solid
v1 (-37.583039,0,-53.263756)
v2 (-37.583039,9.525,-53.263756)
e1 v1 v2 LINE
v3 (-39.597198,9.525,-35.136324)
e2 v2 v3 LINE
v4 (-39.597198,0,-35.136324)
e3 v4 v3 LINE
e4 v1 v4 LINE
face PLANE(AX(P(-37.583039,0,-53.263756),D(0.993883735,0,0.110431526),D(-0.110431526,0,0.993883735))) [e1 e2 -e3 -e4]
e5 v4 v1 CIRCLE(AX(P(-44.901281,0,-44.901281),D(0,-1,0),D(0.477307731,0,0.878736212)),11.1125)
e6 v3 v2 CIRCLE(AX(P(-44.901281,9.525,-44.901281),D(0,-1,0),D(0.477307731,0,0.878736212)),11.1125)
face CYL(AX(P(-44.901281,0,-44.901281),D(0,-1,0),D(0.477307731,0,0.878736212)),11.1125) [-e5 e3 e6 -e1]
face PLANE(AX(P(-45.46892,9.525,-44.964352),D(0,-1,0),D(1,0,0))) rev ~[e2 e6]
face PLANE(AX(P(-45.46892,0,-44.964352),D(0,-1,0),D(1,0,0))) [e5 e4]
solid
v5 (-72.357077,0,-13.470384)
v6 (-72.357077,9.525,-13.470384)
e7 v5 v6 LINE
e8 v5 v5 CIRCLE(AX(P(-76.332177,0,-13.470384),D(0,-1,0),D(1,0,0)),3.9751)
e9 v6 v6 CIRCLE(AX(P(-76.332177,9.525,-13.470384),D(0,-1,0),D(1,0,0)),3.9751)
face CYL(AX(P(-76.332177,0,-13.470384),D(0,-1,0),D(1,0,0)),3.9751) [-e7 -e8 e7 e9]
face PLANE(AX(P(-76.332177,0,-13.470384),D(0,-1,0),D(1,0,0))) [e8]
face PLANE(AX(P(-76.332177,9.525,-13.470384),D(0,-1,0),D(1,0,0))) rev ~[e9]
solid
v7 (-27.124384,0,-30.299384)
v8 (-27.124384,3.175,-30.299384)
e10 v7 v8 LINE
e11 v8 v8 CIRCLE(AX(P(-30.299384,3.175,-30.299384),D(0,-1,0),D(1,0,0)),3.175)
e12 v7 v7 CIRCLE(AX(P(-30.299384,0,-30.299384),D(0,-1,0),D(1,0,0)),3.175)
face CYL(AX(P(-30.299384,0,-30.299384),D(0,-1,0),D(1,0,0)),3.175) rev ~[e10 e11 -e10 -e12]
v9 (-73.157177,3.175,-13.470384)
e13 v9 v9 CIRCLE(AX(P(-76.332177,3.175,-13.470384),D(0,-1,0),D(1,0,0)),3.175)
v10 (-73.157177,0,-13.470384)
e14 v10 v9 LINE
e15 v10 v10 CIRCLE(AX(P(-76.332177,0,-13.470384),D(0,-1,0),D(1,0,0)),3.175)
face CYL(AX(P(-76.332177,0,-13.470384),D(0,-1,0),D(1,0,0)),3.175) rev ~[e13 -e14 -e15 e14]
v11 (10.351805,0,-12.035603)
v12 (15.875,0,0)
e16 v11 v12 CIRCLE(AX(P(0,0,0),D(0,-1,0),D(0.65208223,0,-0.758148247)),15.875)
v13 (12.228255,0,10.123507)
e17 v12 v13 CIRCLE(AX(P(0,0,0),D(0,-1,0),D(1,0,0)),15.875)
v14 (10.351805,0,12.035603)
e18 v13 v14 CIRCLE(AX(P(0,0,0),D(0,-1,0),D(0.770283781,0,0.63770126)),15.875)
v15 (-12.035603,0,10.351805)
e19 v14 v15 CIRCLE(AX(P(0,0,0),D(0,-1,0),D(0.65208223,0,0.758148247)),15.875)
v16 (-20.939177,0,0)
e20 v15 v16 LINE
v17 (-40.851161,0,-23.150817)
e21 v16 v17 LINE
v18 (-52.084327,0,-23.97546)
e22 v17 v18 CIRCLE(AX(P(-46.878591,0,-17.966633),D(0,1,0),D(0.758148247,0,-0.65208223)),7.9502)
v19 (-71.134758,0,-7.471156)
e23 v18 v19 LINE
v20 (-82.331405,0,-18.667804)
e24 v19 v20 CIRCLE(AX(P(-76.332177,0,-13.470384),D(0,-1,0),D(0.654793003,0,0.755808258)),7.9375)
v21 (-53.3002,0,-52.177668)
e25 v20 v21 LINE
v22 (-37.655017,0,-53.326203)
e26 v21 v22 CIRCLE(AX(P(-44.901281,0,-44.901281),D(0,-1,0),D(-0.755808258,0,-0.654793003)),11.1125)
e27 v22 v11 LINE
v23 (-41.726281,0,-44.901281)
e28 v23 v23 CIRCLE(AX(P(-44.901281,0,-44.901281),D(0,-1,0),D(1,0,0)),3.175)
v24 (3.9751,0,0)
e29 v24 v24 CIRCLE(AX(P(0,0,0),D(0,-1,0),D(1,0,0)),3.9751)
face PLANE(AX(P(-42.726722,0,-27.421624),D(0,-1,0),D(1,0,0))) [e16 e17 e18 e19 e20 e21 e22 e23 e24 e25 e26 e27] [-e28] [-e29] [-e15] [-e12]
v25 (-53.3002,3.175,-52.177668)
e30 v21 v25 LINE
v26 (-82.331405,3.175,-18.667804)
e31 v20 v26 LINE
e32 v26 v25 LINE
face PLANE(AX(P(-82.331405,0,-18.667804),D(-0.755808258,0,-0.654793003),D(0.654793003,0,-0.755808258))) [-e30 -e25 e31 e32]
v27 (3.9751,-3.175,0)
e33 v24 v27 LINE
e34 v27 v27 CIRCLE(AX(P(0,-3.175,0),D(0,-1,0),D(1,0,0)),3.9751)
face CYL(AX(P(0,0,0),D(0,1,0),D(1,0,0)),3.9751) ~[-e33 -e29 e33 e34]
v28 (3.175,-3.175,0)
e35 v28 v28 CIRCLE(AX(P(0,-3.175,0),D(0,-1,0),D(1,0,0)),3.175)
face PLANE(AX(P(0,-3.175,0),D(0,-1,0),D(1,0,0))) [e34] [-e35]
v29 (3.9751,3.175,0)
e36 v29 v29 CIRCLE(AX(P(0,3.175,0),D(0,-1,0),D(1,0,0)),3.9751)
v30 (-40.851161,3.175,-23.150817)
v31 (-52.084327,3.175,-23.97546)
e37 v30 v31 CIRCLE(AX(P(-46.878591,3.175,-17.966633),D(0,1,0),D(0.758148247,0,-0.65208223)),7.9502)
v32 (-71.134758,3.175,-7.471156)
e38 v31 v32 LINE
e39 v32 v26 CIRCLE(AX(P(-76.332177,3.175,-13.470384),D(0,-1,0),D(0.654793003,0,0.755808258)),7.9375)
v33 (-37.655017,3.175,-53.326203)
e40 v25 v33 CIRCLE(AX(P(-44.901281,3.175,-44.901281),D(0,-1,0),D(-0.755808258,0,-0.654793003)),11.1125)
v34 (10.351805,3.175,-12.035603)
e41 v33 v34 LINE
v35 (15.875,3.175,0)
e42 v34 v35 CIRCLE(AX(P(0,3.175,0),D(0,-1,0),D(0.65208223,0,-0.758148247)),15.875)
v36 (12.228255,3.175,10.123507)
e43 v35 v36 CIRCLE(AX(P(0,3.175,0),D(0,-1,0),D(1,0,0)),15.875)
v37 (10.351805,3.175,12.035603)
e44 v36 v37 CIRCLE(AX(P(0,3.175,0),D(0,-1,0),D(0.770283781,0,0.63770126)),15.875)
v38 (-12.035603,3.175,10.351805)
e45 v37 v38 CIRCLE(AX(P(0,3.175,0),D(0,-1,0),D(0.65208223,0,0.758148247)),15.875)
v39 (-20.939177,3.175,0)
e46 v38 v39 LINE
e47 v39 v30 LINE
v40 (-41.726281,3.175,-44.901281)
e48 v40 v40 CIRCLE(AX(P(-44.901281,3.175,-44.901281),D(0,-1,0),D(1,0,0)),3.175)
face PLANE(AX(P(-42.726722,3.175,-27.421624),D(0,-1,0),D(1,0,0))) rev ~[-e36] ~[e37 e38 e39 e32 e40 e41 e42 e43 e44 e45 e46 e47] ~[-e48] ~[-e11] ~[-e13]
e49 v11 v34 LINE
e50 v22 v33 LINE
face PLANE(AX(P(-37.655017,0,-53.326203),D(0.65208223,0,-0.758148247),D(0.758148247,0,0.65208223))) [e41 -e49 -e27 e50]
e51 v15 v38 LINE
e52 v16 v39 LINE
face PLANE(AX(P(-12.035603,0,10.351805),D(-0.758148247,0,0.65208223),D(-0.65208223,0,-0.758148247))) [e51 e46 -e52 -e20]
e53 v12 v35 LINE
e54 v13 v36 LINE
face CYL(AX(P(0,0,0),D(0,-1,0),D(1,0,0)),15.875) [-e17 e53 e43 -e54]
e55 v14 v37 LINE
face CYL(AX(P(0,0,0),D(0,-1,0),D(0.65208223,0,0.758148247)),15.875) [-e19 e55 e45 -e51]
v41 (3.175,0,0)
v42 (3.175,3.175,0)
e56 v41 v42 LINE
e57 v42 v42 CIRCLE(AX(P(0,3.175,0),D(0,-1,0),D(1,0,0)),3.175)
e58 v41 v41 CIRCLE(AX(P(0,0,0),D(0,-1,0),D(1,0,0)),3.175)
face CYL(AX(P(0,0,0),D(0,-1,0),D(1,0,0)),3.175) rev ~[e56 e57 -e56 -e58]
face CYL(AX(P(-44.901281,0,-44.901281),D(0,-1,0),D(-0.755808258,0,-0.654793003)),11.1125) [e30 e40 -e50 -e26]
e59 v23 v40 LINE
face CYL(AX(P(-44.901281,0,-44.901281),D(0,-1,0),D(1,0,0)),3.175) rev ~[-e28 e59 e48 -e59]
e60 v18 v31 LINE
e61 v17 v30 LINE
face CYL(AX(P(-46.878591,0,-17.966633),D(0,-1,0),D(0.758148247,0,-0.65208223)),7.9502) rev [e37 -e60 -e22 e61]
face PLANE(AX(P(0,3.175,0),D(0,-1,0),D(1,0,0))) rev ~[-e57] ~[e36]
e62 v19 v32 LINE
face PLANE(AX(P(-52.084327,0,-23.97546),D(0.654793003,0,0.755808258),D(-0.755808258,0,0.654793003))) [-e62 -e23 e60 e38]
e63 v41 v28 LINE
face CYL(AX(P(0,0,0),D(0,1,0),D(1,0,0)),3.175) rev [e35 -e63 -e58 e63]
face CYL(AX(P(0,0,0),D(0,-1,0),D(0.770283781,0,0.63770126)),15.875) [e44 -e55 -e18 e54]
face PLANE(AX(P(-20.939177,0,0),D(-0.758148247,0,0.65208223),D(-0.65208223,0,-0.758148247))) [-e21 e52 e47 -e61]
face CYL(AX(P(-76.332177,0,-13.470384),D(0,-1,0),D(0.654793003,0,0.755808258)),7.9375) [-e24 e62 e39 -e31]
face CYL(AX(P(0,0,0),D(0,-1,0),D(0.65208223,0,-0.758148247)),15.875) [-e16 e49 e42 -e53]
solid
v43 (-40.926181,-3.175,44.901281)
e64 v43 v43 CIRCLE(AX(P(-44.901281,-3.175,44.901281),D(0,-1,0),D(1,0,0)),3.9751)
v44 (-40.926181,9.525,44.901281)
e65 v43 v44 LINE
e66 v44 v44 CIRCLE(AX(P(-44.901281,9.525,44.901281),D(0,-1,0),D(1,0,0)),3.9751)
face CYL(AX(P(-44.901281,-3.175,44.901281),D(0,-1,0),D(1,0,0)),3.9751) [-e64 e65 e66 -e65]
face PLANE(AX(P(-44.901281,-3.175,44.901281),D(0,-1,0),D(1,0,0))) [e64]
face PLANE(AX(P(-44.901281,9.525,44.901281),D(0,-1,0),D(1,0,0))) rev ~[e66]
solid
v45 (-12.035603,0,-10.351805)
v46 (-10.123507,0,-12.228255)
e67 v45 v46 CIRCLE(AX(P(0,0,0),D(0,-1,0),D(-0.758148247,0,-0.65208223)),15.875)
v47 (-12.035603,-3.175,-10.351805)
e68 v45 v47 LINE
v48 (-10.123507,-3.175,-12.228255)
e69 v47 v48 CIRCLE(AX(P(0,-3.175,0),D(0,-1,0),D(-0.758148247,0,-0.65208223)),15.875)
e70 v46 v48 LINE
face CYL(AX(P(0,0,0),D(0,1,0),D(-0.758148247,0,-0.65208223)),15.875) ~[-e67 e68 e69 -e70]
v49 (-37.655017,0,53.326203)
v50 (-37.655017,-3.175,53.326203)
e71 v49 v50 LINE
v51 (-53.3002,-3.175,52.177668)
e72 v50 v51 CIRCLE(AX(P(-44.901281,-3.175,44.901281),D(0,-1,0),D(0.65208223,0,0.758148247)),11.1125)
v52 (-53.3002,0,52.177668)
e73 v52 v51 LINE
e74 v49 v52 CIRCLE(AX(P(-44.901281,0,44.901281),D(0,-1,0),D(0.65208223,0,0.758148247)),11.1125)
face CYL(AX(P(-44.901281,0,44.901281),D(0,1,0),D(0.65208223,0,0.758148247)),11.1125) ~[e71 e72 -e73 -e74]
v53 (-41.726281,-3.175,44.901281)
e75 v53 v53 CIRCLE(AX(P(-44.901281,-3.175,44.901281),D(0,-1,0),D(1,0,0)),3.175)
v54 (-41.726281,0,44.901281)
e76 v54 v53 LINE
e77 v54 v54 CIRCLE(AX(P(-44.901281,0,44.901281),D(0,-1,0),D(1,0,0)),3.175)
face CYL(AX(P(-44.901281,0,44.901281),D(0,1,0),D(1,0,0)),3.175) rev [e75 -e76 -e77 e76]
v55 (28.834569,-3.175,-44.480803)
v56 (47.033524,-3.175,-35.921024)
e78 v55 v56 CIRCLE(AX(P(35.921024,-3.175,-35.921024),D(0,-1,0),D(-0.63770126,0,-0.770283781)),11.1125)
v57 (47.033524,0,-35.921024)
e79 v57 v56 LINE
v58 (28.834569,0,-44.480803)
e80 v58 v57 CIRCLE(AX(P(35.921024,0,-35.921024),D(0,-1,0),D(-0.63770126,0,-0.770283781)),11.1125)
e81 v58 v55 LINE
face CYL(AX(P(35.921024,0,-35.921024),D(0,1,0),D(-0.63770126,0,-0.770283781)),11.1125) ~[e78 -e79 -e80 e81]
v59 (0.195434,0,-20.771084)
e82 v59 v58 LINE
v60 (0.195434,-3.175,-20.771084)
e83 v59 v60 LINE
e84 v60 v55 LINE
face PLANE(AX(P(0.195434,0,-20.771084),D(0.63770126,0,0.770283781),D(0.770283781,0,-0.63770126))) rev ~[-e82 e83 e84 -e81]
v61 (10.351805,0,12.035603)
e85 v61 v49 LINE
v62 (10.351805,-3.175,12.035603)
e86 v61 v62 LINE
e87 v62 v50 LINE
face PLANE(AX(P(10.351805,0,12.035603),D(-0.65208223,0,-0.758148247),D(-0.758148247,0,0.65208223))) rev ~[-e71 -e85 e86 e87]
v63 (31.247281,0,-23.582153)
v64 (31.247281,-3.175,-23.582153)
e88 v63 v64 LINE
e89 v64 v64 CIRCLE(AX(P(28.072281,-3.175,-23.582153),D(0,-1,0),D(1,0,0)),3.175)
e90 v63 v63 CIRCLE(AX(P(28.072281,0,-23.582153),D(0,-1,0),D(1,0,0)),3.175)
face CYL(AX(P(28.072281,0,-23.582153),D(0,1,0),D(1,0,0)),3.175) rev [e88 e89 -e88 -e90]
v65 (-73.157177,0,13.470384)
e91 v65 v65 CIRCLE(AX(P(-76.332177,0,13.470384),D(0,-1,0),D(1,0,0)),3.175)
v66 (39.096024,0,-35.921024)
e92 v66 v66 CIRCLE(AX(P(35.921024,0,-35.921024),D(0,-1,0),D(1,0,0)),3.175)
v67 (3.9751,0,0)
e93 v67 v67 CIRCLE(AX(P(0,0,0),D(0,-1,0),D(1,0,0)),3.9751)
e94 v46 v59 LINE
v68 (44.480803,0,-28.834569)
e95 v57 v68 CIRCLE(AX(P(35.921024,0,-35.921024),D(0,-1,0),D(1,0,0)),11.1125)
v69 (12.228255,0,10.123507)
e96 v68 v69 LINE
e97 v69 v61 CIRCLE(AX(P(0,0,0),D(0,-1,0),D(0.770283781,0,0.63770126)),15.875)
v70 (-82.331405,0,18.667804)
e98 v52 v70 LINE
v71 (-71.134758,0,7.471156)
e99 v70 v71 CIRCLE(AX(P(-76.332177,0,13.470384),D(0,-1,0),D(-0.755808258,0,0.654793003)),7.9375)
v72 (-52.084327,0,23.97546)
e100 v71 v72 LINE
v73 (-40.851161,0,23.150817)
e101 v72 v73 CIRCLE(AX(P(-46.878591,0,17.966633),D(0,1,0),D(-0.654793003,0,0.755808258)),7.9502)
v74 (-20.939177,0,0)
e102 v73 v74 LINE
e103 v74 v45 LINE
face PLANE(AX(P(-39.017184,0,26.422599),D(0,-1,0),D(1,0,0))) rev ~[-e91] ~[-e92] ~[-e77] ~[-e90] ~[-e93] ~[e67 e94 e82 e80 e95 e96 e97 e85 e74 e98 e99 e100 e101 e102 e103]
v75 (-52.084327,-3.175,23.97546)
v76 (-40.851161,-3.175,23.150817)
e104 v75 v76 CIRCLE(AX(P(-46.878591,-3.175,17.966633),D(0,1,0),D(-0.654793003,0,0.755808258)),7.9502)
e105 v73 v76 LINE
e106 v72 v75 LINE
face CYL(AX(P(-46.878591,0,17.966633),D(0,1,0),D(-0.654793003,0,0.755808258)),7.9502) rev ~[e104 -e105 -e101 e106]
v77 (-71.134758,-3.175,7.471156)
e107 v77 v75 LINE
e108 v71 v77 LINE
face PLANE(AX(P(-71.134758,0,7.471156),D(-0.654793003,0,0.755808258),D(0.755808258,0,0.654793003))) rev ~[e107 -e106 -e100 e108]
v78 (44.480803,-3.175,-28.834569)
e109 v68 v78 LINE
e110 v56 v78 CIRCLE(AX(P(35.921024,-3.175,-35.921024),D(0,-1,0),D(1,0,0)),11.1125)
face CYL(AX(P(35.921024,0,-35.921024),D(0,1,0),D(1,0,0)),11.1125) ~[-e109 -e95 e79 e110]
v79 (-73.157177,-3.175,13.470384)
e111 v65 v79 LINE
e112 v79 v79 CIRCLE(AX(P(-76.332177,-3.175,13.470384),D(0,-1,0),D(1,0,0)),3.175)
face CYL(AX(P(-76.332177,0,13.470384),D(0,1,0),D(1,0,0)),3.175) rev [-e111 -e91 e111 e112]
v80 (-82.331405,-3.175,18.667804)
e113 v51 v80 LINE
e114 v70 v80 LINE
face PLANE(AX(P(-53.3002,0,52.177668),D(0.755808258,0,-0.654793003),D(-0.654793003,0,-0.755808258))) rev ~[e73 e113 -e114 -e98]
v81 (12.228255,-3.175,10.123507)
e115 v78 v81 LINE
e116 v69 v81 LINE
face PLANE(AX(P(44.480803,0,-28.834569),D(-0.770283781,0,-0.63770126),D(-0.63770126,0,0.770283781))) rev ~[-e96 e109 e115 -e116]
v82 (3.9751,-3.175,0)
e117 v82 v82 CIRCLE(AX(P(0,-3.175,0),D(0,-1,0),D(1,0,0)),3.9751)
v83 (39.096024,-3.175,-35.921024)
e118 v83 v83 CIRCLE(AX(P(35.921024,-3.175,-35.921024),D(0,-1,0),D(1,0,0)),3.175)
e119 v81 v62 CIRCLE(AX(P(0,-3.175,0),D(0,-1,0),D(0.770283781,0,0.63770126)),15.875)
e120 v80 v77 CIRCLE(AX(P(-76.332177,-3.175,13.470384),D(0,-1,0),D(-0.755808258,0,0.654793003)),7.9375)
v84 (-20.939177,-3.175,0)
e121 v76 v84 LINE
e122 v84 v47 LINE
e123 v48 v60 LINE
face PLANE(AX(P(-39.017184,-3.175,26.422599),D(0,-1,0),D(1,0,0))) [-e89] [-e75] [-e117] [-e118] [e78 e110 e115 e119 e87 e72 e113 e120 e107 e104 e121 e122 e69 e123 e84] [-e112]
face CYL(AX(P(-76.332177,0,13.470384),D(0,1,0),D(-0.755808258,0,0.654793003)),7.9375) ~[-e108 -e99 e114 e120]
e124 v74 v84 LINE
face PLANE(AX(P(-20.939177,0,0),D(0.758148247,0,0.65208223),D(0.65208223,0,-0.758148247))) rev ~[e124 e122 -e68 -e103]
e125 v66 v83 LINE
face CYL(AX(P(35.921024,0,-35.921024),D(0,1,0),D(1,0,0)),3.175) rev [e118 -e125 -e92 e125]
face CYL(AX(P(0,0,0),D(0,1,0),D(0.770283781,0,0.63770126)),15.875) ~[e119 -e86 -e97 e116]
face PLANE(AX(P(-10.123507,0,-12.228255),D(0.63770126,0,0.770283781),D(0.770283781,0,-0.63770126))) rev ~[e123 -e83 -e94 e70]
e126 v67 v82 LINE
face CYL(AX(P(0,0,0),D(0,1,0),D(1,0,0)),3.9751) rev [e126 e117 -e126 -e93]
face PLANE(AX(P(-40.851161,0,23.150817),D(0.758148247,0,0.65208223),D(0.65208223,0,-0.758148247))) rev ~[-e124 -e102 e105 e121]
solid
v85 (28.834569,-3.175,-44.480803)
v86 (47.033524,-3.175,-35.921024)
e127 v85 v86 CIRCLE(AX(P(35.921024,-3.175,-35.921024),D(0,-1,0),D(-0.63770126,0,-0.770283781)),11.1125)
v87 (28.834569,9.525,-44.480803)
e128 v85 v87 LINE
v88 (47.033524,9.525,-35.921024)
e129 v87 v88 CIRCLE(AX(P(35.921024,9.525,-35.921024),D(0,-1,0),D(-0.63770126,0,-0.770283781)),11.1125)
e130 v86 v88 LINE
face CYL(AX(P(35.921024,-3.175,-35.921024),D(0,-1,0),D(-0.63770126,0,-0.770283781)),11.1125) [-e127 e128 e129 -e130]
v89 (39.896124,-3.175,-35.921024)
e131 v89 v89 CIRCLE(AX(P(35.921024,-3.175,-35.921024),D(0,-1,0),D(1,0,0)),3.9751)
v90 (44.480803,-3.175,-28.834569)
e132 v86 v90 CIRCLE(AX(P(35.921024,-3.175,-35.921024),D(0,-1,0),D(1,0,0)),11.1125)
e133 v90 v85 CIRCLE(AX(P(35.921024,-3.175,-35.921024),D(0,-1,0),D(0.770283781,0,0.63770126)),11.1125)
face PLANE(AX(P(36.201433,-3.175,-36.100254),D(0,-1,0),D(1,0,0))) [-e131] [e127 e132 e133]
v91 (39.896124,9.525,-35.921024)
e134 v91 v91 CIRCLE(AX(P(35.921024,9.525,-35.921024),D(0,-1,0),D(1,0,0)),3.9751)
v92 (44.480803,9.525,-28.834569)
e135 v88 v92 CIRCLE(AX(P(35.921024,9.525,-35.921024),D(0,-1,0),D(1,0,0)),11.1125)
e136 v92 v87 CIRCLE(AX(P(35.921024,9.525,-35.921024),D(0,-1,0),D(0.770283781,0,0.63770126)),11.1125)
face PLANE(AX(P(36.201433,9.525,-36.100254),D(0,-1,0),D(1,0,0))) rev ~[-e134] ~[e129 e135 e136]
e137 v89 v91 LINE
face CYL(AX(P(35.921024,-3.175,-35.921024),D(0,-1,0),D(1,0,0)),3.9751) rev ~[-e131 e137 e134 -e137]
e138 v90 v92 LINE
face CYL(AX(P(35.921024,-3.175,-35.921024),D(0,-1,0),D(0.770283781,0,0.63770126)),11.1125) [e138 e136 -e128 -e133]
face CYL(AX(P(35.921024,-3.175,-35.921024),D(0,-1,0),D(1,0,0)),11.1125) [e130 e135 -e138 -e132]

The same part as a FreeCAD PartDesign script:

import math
import FreeCAD as App
import Part
import Sketcher
from FreeCAD import Vector
Q = App.Units.Quantity

doc = App.newDocument("Part")
params = doc.addObject("Spreadsheet::Sheet", "Params")
for row, (alias, value) in enumerate([
    ("sketch1_diameter", "0.25 in"),
    ("sketch1_diameter2", "0.313 in"),
    ("sketch1_radius", "0.4375 in"),
    ("sketch1_radius2", "0.3125 in"),
    ("sketch1_radius3", "0.313 in"),
    ("pad1_length", "0.125 in"),
    ("sketch2_diameter", "0.25 in"),
    ("sketch2_diameter2", "0.25 in"),
    ("sketch2_diameter3", "0.25 in"),
    ("sketch2_diameter4", "0.313 in"),
    ("sketch2_radius", "0.625 in"),
    ("pad2_length", "0.125 in"),
    ("sketch3_diameter", "0.25 in"),
    ("sketch3_diameter2", "0.313 in"),
    ("pad3_length", "0.125 in"),
    ("pad3_length2", "0.125 in"),
    ("sketch4_diameter", "0.313 in"),
    ("pad4_length", "0.5 in"),
    ("sketch5_diameter", "0.313 in"),
    ("sketch5_radius", "0.4375 in"),
    ("pad5_length", "0.5 in"),
    ("sketch6_radius", "0.4375 in"),
    ("pad6_length", "0.375 in"),
    ("sketch7_diameter", "0.313 in"),
    ("pad7_length", "0.375 in"),
], start=1):
    params.set(f"A{row}", alias)
    params.set(f"B{row}", "=" + value)
    params.setAlias(f"B{row}", alias)

body = doc.addObject("PartDesign::Body", "Body")

# Sketch on XZ plane
sketch1 = body.newObject("Sketcher::SketchObject", "Sketch")
sketch1.AttachmentSupport = (doc.getObject("XZ_Plane"), [""])
sketch1.MapMode = "FlatFace"
sketch1.addGeometry(Part.LineSegment(Vector(10.4, 12, 0), Vector(-37.7, 53.3, 0)), False)
sketch1.addGeometry(Part.ArcOfCircle(Part.Circle(Vector(-44.9, 44.9, 0), Vector(0, 0, 1), 11.1), math.radians(49), math.radians(139)), False)
sketch1.addGeometry(Part.LineSegment(Vector(-53.3, 52.2, 0), Vector(-82.3, 18.7, 0)), False)
sketch1.addGeometry(Part.ArcOfCircle(Part.Circle(Vector(-76.3, 13.5, 0), Vector(0, 0, 1), 7.9), math.radians(139), math.radians(311)), False)
sketch1.addGeometry(Part.LineSegment(Vector(-71.1, 7.5, 0), Vector(-52.1, 24, 0)), False)
sketch1.addGeometry(Part.ArcOfCircle(Part.Circle(Vector(-46.9, 18, 0), Vector(0, 0, 1), 8), math.radians(41), math.radians(131)), False)
sketch1.addGeometry(Part.LineSegment(Vector(-40.9, 23.2, 0), Vector(-20.9, 0, 0)), False)
sketch1.addGeometry(Part.LineSegment(Vector(-20.9, 0, 0), Vector(-12, -10.4, 0)), False)
sketch1.addGeometry(Part.ArcOfCircle(Part.Circle(Vector(0, 0, 0), Vector(0, 0, 1), 15.9), math.radians(-139.3), math.radians(-129.62)), False)
sketch1.addGeometry(Part.LineSegment(Vector(-10.1, -12.2, 0), Vector(0.2, -20.8, 0)), False)
sketch1.addGeometry(Part.LineSegment(Vector(0.2, -20.8, 0), Vector(28.8, -44.5, 0)), False)
sketch1.addGeometry(Part.ArcOfCircle(Part.Circle(Vector(35.9, -35.9, 0), Vector(0, 0, 1), 11.1), math.radians(-130), math.radians(0)), False)
sketch1.addGeometry(Part.ArcOfCircle(Part.Circle(Vector(35.9, -35.9, 0), Vector(0, 0, 1), 11.1), math.radians(0), math.radians(40)), False)
sketch1.addGeometry(Part.LineSegment(Vector(44.5, -28.8, 0), Vector(12.2, 10.1, 0)), False)
sketch1.addGeometry(Part.ArcOfCircle(Part.Circle(Vector(0, 0, 0), Vector(0, 0, 1), 15.9), math.radians(39.62), math.radians(49.3)), False)
sketch1.addGeometry(Part.Circle(Vector(35.9, -35.9, 0), Vector(0, 0, 1), 3.2), False)
sketch1.addGeometry(Part.Circle(Vector(28.1, -23.6, 0), Vector(0, 0, 1), 3.2), False)
sketch1.addGeometry(Part.Circle(Vector(0, 0, 0), Vector(0, 0, 1), 4), False)
sketch1.addGeometry(Part.Circle(Vector(-76.3, 13.5, 0), Vector(0, 0, 1), 3.2), False)
sketch1.addGeometry(Part.Circle(Vector(-44.9, 44.9, 0), Vector(0, 0, 1), 3.2), False)
sketch1.addConstraint(Sketcher.Constraint("Tangent", 0, 2, 1, 1))
sketch1.addConstraint(Sketcher.Constraint("Tangent", 1, 2, 2, 1))
sketch1.addConstraint(Sketcher.Constraint("Tangent", 2, 2, 3, 1))
sketch1.addConstraint(Sketcher.Constraint("Tangent", 3, 2, 4, 1))
sketch1.addConstraint(Sketcher.Constraint("Tangent", 4, 2, 5, 2))
sketch1.addConstraint(Sketcher.Constraint("Tangent", 5, 1, 6, 1))
sketch1.addConstraint(Sketcher.Constraint("Coincident", 6, 2, 7, 1))
sketch1.addConstraint(Sketcher.Constraint("Tangent", 7, 2, 8, 1))
sketch1.addConstraint(Sketcher.Constraint("Tangent", 8, 2, 9, 1))
sketch1.addConstraint(Sketcher.Constraint("Coincident", 9, 2, 10, 1))
sketch1.addConstraint(Sketcher.Constraint("Tangent", 10, 2, 11, 1))
sketch1.addConstraint(Sketcher.Constraint("Tangent", 11, 2, 12, 1))
sketch1.addConstraint(Sketcher.Constraint("Tangent", 12, 2, 13, 1))
sketch1.addConstraint(Sketcher.Constraint("Tangent", 13, 2, 14, 1))
sketch1.addConstraint(Sketcher.Constraint("Tangent", 14, 2, 0, 1))
sketch1.addConstraint(Sketcher.Constraint("Coincident", 8, 3, -1, 1))
sketch1.addConstraint(Sketcher.Constraint("Coincident", 14, 3, -1, 1))
sketch1.addConstraint(Sketcher.Constraint("Coincident", 17, 3, -1, 1))
sketch1.addConstraint(Sketcher.Constraint("Coincident", 15, 3, 11, 3))
sketch1.addConstraint(Sketcher.Constraint("Coincident", 18, 3, 3, 3))
sketch1.addConstraint(Sketcher.Constraint("Coincident", 19, 3, 1, 3))
sketch1.addConstraint(Sketcher.Constraint("Equal", 1, 11))
sketch1.addConstraint(Sketcher.Constraint("Equal", 11, 12))
sketch1.addConstraint(Sketcher.Constraint("Equal", 8, 14))
sketch1.addConstraint(Sketcher.Constraint("Equal", 15, 16))
sketch1.addConstraint(Sketcher.Constraint("Equal", 16, 18))
sketch1.addConstraint(Sketcher.Constraint("Equal", 18, 19))
sketch1.addConstraint(Sketcher.Constraint("PointOnObject", 6, 2, -1))
sketch1.addConstraint(Sketcher.Constraint("Parallel", 6, 7))
sketch1.addConstraint(Sketcher.Constraint("Parallel", 9, 10))
sketch1.addConstraint(Sketcher.Constraint("Horizontal", 15, 3, 11, 2))
sketch1.addConstraint(Sketcher.Constraint("Diameter", 15, Q("0.25 in")))
sketch1.addConstraint(Sketcher.Constraint("Diameter", 17, Q("0.313 in")))
sketch1.addConstraint(Sketcher.Constraint("Radius", 1, Q("0.4375 in")))
sketch1.addConstraint(Sketcher.Constraint("Radius", 3, Q("0.3125 in")))
sketch1.addConstraint(Sketcher.Constraint("Radius", 5, Q("0.313 in")))
sketch1.addConstraint(Sketcher.Constraint("Radius", 8, Q("0.625 in")))
sketch1.addConstraint(Sketcher.Constraint("DistanceX", 1, 2, -1, 1, 53.3002))
sketch1.addConstraint(Sketcher.Constraint("DistanceX", 3, 3, 11, 3, 112.253202))
sketch1.addConstraint(Sketcher.Constraint("Distance", 10, 37.179979))
sketch1.addConstraint(Sketcher.Constraint("DistanceX", 1, 3, -1, 1, 44.901281))
sketch1.addConstraint(Sketcher.Constraint("DistanceY", -1, 1, 1, 3, 44.901281))
sketch1.addConstraint(Sketcher.Constraint("DistanceX", 5, 3, -1, 1, 46.878591))
sketch1.addConstraint(Sketcher.Constraint("DistanceX", -1, 1, 16, 3, 28.072281))
sketch1.addConstraint(Sketcher.Constraint("DistanceY", -1, 1, 4, 2, 23.97546))
sketch1.addConstraint(Sketcher.Constraint("DistanceX", -1, 1, 10, 2, 28.834569))
sketch1.addConstraint(Sketcher.Constraint("DistanceY", 12, 2, -1, 1, 28.834569))
sketch1.addConstraint(Sketcher.Constraint("DistanceY", 11, 3, 16, 3, 12.338872))
sketch1.setExpression("Constraints[31]", "Params.sketch1_diameter")
sketch1.setExpression("Constraints[32]", "Params.sketch1_diameter2")
sketch1.setExpression("Constraints[33]", "Params.sketch1_radius")
sketch1.setExpression("Constraints[34]", "Params.sketch1_radius2")
sketch1.setExpression("Constraints[35]", "Params.sketch1_radius3")
pad1 = body.newObject("PartDesign::Pad", "Pad")
pad1.Profile = sketch1
pad1.setExpression("Length", "Params.pad1_length")
body2 = doc.addObject("PartDesign::Body", "Body001")

# Sketch on XZ plane
sketch2 = body2.newObject("Sketcher::SketchObject", "Sketch001")
sketch2.AttachmentSupport = (doc.getObject("XZ_Plane001"), [""])
sketch2.MapMode = "FlatFace"
sketch2.addGeometry(Part.LineSegment(Vector(-37.655017, -53.326203, 0), Vector(10.351805, -12.035603, 0)), False)
sketch2.addGeometry(Part.ArcOfCircle(Part.Circle(Vector(0, 0, 0), Vector(0, 0, 1), 15.875), math.radians(-49.301222), math.radians(0)), False)
sketch2.addGeometry(Part.ArcOfCircle(Part.Circle(Vector(0, 0, 0), Vector(0, 0, 1), 15.875), math.radians(0), math.radians(39.620621)), False)
sketch2.addGeometry(Part.ArcOfCircle(Part.Circle(Vector(0, 0, 0), Vector(0, 0, 1), 15.875), math.radians(39.620621), math.radians(49.301222)), False)
sketch2.addGeometry(Part.ArcOfCircle(Part.Circle(Vector(0, 0, 0), Vector(0, 0, 1), 15.875), math.radians(49.301222), math.radians(139.301222)), False)
sketch2.addGeometry(Part.LineSegment(Vector(-12.035603, 10.351805, 0), Vector(-20.939177, 0, 0)), False)
sketch2.addGeometry(Part.LineSegment(Vector(-20.939177, 0, 0), Vector(-40.851161, -23.150817, 0)), False)
sketch2.addGeometry(Part.ArcOfCircle(Part.Circle(Vector(-46.878591, -17.966633, 0), Vector(0, 0, 1), 7.9502), math.radians(-130.903956), math.radians(-40.698778)), False)
sketch2.addGeometry(Part.LineSegment(Vector(-52.084327, -23.97546, 0), Vector(-71.134758, -7.471156, 0)), False)
sketch2.addGeometry(Part.ArcOfCircle(Part.Circle(Vector(-76.332177, -13.470384, 0), Vector(0, 0, 1), 7.9375), math.radians(49.096044), math.radians(220.903956)), False)
sketch2.addGeometry(Part.LineSegment(Vector(-82.331405, -18.667804, 0), Vector(-53.3002, -52.177668, 0)), False)
sketch2.addGeometry(Part.ArcOfCircle(Part.Circle(Vector(-44.901281, -44.901281, 0), Vector(0, 0, 1), 11.1125), math.radians(-139.096044), math.radians(-49.301222)), False)
sketch2.addGeometry(Part.Circle(Vector(-44.901281, -44.901281, 0), Vector(0, 0, 1), 3.175), False)
sketch2.addGeometry(Part.Circle(Vector(-30.299384, -30.299384, 0), Vector(0, 0, 1), 3.175), False)
sketch2.addGeometry(Part.Circle(Vector(-76.332177, -13.470384, 0), Vector(0, 0, 1), 3.175), False)
sketch2.addGeometry(Part.Circle(Vector(0, 0, 0), Vector(0, 0, 1), 3.9751), False)
sketch2.addConstraint(Sketcher.Constraint("Coincident", 0, 2, 1, 1))
sketch2.addConstraint(Sketcher.Constraint("Coincident", 1, 2, 2, 1))
sketch2.addConstraint(Sketcher.Constraint("Coincident", 2, 2, 3, 1))
sketch2.addConstraint(Sketcher.Constraint("Coincident", 3, 2, 4, 1))
sketch2.addConstraint(Sketcher.Constraint("Coincident", 4, 2, 5, 1))
sketch2.addConstraint(Sketcher.Constraint("Coincident", 5, 2, 6, 1))
sketch2.addConstraint(Sketcher.Constraint("Coincident", 6, 2, 7, 2))
sketch2.addConstraint(Sketcher.Constraint("Coincident", 7, 1, 8, 1))
sketch2.addConstraint(Sketcher.Constraint("Coincident", 8, 2, 9, 1))
sketch2.addConstraint(Sketcher.Constraint("Coincident", 9, 2, 10, 1))
sketch2.addConstraint(Sketcher.Constraint("Coincident", 10, 2, 11, 1))
sketch2.addConstraint(Sketcher.Constraint("Coincident", 11, 2, 0, 1))
sketch2.addConstraint(Sketcher.Constraint("Coincident", 1, 3, -1, 1))
sketch2.addConstraint(Sketcher.Constraint("Coincident", 2, 3, -1, 1))
sketch2.addConstraint(Sketcher.Constraint("Coincident", 3, 3, -1, 1))
sketch2.addConstraint(Sketcher.Constraint("Coincident", 4, 3, -1, 1))
sketch2.addConstraint(Sketcher.Constraint("Coincident", 15, 3, -1, 1))
sketch2.addConstraint(Sketcher.Constraint("Coincident", 12, 3, 11, 3))
sketch2.addConstraint(Sketcher.Constraint("Coincident", 14, 3, 9, 3))
sketch2.addConstraint(Sketcher.Constraint("PointOnObject", 1, 2, -1))
sketch2.addConstraint(Sketcher.Constraint("PointOnObject", 5, 2, -1))
sketch2.addConstraint(Sketcher.Constraint("Diameter", 12, Q("0.25 in")))
sketch2.addConstraint(Sketcher.Constraint("Diameter", 13, Q("0.25 in")))
sketch2.addConstraint(Sketcher.Constraint("Diameter", 14, Q("0.25 in")))
sketch2.addConstraint(Sketcher.Constraint("Diameter", 15, Q("0.313 in")))
sketch2.addConstraint(Sketcher.Constraint("Radius", 1, Q("0.625 in")))
sketch2.addConstraint(Sketcher.Constraint("Radius", 7, Q("0.313 in")))
sketch2.addConstraint(Sketcher.Constraint("Radius", 9, Q("0.3125 in")))
sketch2.addConstraint(Sketcher.Constraint("Radius", 11, Q("0.4375 in")))
sketch2.addConstraint(Sketcher.Constraint("DistanceX", 10, 2, -1, 1, 53.3002))
sketch2.addConstraint(Sketcher.Constraint("DistanceY", 13, 3, 14, 3, 16.829))
sketch2.addConstraint(Sketcher.Constraint("DistanceX", 7, 3, -1, 1, 46.878591))
sketch2.addConstraint(Sketcher.Constraint("DistanceX", 11, 3, -1, 1, 44.901281))
sketch2.addConstraint(Sketcher.Constraint("DistanceY", 11, 3, -1, 1, 44.901281))
sketch2.addConstraint(Sketcher.Constraint("DistanceX", 6, 2, -1, 1, 40.851161))
sketch2.addConstraint(Sketcher.Constraint("DistanceY", 7, 1, -1, 1, 23.97546))
sketch2.addConstraint(Sketcher.Constraint("DistanceY", 7, 3, 9, 3, 4.496249))
sketch2.addConstraint(Sketcher.Constraint("DistanceX", 3, 2, 2, 2, 1.87645))
sketch2.addConstraint(Sketcher.Constraint("DistanceX", 9, 3, 8, 2, 5.197419))
sketch2.addConstraint(Sketcher.Constraint("DistanceX", 8, 2, 7, 1, 19.050431))
sketch2.addConstraint(Sketcher.Constraint("DistanceX", 9, 2, 9, 3, 5.999228))
sketch2.addConstraint(Sketcher.Constraint("DistanceY", 10, 2, 6, 2, 29.026851))
sketch2.addConstraint(Sketcher.Constraint("DistanceY", 11, 2, 13, 3, 23.026819))
sketch2.addConstraint(Sketcher.Constraint("Distance", 0, 63.321154))
sketch2.addConstraint(Sketcher.Constraint("Distance", 5, 13.654065))
sketch2.addConstraint(Sketcher.Constraint("Distance", 6, 30.536003))
sketch2.addConstraint(Sketcher.Constraint("DistanceX", 13, 3, -1, 1, 30.299384))
sketch2.addConstraint(Sketcher.Constraint("DistanceX", -1, 1, 2, 2, 12.228255))
sketch2.setExpression("Constraints[21]", "Params.sketch2_diameter")
sketch2.setExpression("Constraints[22]", "Params.sketch2_diameter2")
sketch2.setExpression("Constraints[23]", "Params.sketch2_diameter3")
sketch2.setExpression("Constraints[24]", "Params.sketch2_diameter4")
sketch2.setExpression("Constraints[25]", "Params.sketch2_radius")
pad2 = body2.newObject("PartDesign::Pad", "Pad001")
pad2.Profile = sketch2
pad2.setExpression("Length", "Params.pad2_length")
pad2.Reversed = True

# Sketch on XZ plane
sketch3 = body2.newObject("Sketcher::SketchObject", "Sketch002")
sketch3.AttachmentSupport = (doc.getObject("XZ_Plane001"), [""])
sketch3.MapMode = "FlatFace"
sketch3.addGeometry(Part.Circle(Vector(0, 0, 0), Vector(0, 0, 1), 4), False)
sketch3.addGeometry(Part.Circle(Vector(0, 0, 0), Vector(0, 0, 1), 3.2), False)
sketch3.addConstraint(Sketcher.Constraint("Coincident", 0, 3, -1, 1))
sketch3.addConstraint(Sketcher.Constraint("Coincident", 1, 3, -1, 1))
sketch3.addConstraint(Sketcher.Constraint("Diameter", 1, Q("0.25 in")))
sketch3.addConstraint(Sketcher.Constraint("Diameter", 0, Q("0.313 in")))
sketch3.setExpression("Constraints[2]", "Params.sketch3_diameter")
sketch3.setExpression("Constraints[3]", "Params.sketch3_diameter2")
pad3 = body2.newObject("PartDesign::Pad", "Pad002")
pad3.Profile = sketch3
pad3.Type = "TwoLengths"
pad3.setExpression("Length", "Params.pad3_length")
pad3.setExpression("Length2", "Params.pad3_length2")
body3 = doc.addObject("PartDesign::Body", "Body002")

# Sketch on XZ plane
sketch4 = body3.newObject("Sketcher::SketchObject", "Sketch003")
sketch4.AttachmentSupport = (doc.getObject("XZ_Plane002"), [""])
sketch4.MapMode = "FlatFace"
sketch4.AttachmentOffset = App.Placement(Vector(0, 0, 0.125 * 25.4), App.Rotation())
sketch4.addGeometry(Part.Circle(Vector(-44.9, 44.9, 0), Vector(0, 0, 1), 4), False)
sketch4.addConstraint(Sketcher.Constraint("Diameter", 0, Q("0.313 in")))
sketch4.addConstraint(Sketcher.Constraint("DistanceX", 0, 3, -1, 1, 44.901281))
sketch4.addConstraint(Sketcher.Constraint("DistanceY", -1, 1, 0, 3, 44.901281))
sketch4.setExpression("Constraints[0]", "Params.sketch4_diameter")
pad4 = body3.newObject("PartDesign::Pad", "Pad003")
pad4.Profile = sketch4
pad4.setExpression("Length", "Params.pad4_length")
pad4.Reversed = True
body4 = doc.addObject("PartDesign::Body", "Body003")

# Sketch on XZ plane
sketch5 = body4.newObject("Sketcher::SketchObject", "Sketch004")
sketch5.AttachmentSupport = (doc.getObject("XZ_Plane003"), [""])
sketch5.MapMode = "FlatFace"
sketch5.AttachmentOffset = App.Placement(Vector(0, 0, 0.125 * 25.4), App.Rotation())
sketch5.addGeometry(Part.ArcOfCircle(Part.Circle(Vector(35.9, -35.9, 0), Vector(0, 0, 1), 11.1), math.radians(-130), math.radians(0)), False)
sketch5.addGeometry(Part.ArcOfCircle(Part.Circle(Vector(35.9, -35.9, 0), Vector(0, 0, 1), 11.1), math.radians(0), math.radians(40)), False)
sketch5.addGeometry(Part.ArcOfCircle(Part.Circle(Vector(35.9, -35.9, 0), Vector(0, 0, 1), 11.1), math.radians(40), math.radians(230)), False)
sketch5.addGeometry(Part.Circle(Vector(35.9, -35.9, 0), Vector(0, 0, 1), 4), False)
sketch5.addConstraint(Sketcher.Constraint("Tangent", 0, 2, 1, 1))
sketch5.addConstraint(Sketcher.Constraint("Tangent", 1, 2, 2, 1))
sketch5.addConstraint(Sketcher.Constraint("Tangent", 2, 2, 0, 1))
sketch5.addConstraint(Sketcher.Constraint("Coincident", 3, 3, 0, 3))
sketch5.addConstraint(Sketcher.Constraint("Horizontal", 3, 3, 0, 2))
sketch5.addConstraint(Sketcher.Constraint("Diameter", 3, Q("0.313 in")))
sketch5.addConstraint(Sketcher.Constraint("Radius", 0, Q("0.4375 in")))
sketch5.addConstraint(Sketcher.Constraint("DistanceY", 1, 2, -1, 1, 28.834569))
sketch5.addConstraint(Sketcher.Constraint("DistanceX", -1, 1, 2, 2, 28.834569))
sketch5.addConstraint(Sketcher.Constraint("DistanceX", 1, 2, 0, 2, 2.552721))
sketch5.addConstraint(Sketcher.Constraint("DistanceY", 2, 2, 0, 3, 8.559779))
sketch5.setExpression("Constraints[5]", "Params.sketch5_diameter")
sketch5.setExpression("Constraints[6]", "Params.sketch5_radius")
pad5 = body4.newObject("PartDesign::Pad", "Pad004")
pad5.Profile = sketch5
pad5.setExpression("Length", "Params.pad5_length")
pad5.Reversed = True
body5 = doc.addObject("PartDesign::Body", "Body004")

# Sketch on XZ plane
sketch6 = body5.newObject("Sketcher::SketchObject", "Sketch005")
sketch6.AttachmentSupport = (doc.getObject("XZ_Plane004"), [""])
sketch6.MapMode = "FlatFace"
sketch6.addGeometry(Part.LineSegment(Vector(-38, -53, 0), Vector(-40, -35, 0)), False)
sketch6.addGeometry(Part.ArcOfCircle(Part.Circle(Vector(-45, -45, 0), Vector(0, 0, 1), 11), math.radians(61), math.radians(311)), False)
sketch6.addConstraint(Sketcher.Constraint("Coincident", 0, 1, 1, 2))
sketch6.addConstraint(Sketcher.Constraint("Coincident", 1, 1, 0, 2))
sketch6.addConstraint(Sketcher.Constraint("Radius", 1, Q("0.4375 in")))
sketch6.addConstraint(Sketcher.Constraint("DistanceX", 1, 1, -1, 1, 39.597198))
sketch6.addConstraint(Sketcher.Constraint("DistanceX", 1, 3, -1, 1, 44.901281))
sketch6.addConstraint(Sketcher.Constraint("DistanceY", 1, 3, -1, 1, 44.901281))
sketch6.addConstraint(Sketcher.Constraint("DistanceX", 0, 1, -1, 1, 37.583039))
sketch6.setExpression("Constraints[2]", "Params.sketch6_radius")
pad6 = body5.newObject("PartDesign::Pad", "Pad005")
pad6.Profile = sketch6
pad6.setExpression("Length", "Params.pad6_length")
pad6.Reversed = True
body6 = doc.addObject("PartDesign::Body", "Body005")

# Sketch on XZ plane
sketch7 = body6.newObject("Sketcher::SketchObject", "Sketch006")
sketch7.AttachmentSupport = (doc.getObject("XZ_Plane005"), [""])
sketch7.MapMode = "FlatFace"
sketch7.addGeometry(Part.Circle(Vector(-76.3, -13.5, 0), Vector(0, 0, 1), 4), False)
sketch7.addConstraint(Sketcher.Constraint("Diameter", 0, Q("0.313 in")))
sketch7.addConstraint(Sketcher.Constraint("DistanceX", 0, 3, -1, 1, 76.332177))
sketch7.addConstraint(Sketcher.Constraint("DistanceY", 0, 3, -1, 1, 13.470384))
sketch7.setExpression("Constraints[0]", "Params.sketch7_diameter")
pad7 = body6.newObject("PartDesign::Pad", "Pad006")
pad7.Profile = sketch7
pad7.setExpression("Length", "Params.pad7_length")
pad7.Reversed = True

doc.recompute()
